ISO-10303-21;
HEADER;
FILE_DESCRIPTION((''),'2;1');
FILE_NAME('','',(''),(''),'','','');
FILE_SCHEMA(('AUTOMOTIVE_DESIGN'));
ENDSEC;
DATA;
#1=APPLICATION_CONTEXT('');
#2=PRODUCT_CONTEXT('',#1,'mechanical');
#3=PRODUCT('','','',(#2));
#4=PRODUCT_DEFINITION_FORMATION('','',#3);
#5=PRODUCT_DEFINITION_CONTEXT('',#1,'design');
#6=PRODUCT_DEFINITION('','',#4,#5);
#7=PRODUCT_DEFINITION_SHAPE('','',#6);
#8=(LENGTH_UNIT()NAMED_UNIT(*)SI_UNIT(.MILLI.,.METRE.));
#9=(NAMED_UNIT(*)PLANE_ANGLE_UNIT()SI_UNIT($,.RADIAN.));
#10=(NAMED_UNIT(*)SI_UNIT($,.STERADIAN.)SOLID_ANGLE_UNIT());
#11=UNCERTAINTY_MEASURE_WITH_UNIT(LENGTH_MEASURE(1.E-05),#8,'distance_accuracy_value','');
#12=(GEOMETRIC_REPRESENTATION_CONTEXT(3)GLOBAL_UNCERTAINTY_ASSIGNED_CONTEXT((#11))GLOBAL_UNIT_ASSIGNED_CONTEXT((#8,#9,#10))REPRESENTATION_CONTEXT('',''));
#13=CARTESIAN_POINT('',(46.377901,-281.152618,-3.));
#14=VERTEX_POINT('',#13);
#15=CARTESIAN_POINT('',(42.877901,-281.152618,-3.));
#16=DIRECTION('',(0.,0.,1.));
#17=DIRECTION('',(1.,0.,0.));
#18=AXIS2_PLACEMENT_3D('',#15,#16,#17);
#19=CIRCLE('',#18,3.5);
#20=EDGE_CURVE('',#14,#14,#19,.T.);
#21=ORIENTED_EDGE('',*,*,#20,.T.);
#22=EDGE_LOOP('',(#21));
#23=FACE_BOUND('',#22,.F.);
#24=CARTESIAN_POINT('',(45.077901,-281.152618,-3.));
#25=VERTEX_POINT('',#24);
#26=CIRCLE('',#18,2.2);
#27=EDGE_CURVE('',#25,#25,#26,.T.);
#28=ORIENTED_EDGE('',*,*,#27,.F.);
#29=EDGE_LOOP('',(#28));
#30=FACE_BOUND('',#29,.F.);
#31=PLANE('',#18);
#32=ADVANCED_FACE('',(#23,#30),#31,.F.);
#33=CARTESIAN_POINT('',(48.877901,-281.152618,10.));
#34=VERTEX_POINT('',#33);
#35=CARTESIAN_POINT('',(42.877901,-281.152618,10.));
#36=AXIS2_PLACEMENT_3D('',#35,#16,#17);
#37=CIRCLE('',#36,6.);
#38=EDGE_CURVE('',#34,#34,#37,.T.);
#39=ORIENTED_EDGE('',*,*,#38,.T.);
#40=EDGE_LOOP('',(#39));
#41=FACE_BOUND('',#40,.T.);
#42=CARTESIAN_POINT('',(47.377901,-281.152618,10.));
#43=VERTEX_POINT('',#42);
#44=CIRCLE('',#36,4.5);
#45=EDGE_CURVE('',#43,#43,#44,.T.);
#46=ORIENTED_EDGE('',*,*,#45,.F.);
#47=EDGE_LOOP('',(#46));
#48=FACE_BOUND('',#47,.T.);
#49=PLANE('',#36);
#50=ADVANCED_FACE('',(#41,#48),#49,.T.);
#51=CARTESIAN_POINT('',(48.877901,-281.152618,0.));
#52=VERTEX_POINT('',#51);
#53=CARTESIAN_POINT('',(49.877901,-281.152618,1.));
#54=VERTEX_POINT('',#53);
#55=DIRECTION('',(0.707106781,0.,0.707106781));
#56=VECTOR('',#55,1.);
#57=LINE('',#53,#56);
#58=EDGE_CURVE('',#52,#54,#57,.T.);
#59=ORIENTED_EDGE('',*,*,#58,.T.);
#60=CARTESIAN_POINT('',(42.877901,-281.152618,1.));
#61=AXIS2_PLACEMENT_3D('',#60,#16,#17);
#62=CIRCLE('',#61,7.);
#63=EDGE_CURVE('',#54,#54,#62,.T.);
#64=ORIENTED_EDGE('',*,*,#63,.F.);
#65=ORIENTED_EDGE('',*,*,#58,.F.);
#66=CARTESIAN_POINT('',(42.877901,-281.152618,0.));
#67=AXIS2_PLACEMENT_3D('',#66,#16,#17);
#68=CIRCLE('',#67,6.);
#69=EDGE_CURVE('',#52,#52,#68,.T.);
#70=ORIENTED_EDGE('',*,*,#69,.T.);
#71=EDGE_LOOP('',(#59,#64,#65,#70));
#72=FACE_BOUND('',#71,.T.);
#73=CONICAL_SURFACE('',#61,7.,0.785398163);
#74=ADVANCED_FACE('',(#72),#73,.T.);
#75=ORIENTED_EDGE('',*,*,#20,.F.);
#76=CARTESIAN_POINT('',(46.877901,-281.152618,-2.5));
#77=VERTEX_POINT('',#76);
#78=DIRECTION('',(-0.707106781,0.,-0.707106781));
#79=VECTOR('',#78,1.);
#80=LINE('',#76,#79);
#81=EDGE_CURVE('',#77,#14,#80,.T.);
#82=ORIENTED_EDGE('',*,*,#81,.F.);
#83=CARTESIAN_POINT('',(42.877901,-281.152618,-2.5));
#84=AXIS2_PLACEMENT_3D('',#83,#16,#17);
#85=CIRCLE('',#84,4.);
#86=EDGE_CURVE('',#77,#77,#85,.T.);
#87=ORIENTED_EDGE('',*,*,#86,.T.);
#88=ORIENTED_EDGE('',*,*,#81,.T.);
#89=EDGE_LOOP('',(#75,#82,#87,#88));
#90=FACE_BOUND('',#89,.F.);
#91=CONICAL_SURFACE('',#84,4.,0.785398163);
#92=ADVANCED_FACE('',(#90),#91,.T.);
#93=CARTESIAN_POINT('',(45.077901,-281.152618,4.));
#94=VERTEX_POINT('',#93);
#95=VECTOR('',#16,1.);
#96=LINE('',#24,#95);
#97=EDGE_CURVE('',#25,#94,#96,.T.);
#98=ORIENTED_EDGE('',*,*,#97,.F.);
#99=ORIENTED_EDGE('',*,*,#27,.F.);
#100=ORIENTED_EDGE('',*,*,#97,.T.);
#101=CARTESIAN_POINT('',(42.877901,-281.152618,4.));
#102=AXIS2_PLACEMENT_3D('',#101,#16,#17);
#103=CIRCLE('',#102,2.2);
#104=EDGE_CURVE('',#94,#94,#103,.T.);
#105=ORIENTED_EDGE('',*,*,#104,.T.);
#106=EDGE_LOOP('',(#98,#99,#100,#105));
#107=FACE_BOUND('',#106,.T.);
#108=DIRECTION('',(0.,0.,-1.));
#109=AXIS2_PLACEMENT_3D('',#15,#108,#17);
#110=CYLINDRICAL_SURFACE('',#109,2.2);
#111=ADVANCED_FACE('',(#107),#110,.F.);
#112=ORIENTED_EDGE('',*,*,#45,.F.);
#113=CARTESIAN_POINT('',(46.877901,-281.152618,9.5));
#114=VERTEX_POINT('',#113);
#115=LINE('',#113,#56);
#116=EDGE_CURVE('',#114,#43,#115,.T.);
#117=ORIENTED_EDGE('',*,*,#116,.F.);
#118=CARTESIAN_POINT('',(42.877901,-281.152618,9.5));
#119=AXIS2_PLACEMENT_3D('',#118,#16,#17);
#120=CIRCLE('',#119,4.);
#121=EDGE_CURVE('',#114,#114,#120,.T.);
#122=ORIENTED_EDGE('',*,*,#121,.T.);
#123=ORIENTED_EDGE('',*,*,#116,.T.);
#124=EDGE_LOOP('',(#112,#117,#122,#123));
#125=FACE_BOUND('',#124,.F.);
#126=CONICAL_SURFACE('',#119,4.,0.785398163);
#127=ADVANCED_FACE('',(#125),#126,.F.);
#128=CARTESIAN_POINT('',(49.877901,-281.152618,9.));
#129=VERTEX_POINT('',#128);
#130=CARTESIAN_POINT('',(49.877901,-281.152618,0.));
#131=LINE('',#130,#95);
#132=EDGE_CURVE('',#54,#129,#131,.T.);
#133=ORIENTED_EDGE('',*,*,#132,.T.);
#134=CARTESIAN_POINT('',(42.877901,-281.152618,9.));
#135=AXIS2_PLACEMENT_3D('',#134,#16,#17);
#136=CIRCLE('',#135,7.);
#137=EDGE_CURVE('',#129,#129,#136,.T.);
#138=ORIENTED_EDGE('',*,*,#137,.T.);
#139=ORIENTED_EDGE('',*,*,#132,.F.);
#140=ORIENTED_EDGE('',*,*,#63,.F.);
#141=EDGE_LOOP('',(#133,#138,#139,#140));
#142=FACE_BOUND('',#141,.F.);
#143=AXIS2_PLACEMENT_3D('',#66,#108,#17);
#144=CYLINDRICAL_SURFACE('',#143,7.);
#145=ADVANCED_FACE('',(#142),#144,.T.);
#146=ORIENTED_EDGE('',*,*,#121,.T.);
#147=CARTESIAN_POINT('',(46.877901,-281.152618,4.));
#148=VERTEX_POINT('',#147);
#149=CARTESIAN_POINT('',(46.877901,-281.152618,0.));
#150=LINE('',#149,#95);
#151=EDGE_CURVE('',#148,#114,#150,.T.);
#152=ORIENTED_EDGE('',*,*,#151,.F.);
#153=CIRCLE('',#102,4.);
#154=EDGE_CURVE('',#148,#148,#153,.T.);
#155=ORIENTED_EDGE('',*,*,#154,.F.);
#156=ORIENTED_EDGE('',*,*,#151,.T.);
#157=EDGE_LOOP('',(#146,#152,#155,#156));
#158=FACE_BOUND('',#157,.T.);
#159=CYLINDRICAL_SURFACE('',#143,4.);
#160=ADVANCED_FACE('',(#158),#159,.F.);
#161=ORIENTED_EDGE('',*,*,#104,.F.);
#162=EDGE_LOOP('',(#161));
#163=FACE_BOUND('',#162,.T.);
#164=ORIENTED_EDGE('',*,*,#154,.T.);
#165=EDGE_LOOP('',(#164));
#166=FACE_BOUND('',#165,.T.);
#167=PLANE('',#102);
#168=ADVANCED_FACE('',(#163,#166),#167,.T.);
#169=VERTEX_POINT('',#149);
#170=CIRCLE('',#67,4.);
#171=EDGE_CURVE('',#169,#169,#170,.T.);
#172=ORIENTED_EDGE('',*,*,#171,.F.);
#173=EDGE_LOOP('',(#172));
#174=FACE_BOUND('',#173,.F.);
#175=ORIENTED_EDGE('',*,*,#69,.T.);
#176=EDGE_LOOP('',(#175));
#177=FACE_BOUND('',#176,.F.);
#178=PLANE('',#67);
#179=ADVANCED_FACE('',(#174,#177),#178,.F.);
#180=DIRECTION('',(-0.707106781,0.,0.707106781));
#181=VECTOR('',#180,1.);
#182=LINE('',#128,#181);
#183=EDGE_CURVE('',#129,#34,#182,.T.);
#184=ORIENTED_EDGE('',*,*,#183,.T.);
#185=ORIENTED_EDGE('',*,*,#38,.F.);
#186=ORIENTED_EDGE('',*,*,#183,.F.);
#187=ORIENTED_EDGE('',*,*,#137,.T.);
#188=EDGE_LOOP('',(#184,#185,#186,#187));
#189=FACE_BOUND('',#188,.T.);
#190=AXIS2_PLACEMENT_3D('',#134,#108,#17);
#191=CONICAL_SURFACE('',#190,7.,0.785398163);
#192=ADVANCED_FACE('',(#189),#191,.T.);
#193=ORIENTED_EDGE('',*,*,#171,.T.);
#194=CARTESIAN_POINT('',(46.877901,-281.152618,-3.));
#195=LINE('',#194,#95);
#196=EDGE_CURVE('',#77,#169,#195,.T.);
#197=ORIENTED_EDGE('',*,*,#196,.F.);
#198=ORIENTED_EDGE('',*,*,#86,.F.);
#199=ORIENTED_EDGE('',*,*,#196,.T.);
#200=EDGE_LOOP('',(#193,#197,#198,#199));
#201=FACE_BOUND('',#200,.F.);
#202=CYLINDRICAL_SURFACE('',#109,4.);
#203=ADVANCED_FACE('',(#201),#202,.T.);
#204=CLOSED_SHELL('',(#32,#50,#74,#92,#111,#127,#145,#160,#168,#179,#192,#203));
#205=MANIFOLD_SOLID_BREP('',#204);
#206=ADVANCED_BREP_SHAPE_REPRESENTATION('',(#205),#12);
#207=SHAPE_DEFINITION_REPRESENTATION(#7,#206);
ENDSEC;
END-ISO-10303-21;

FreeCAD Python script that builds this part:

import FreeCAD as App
import Part
import Sketcher


def edges_at(feature, points):
    """Names of the edges that pass closest to the given points."""
    edges = feature.Shape.Edges
    near = lambda p: min(range(len(edges)), key=lambda i: edges[i].distToShape(Part.Vertex(*p))[0])
    return sorted({f"Edge{near(p) + 1}" for p in points})

doc = App.newDocument("Part")
body = doc.addObject("PartDesign::Body", "Body")

# Sketch on XY plane
sketch1 = body.newObject("Sketcher::SketchObject", "Sketch")
sketch1.AttachmentSupport = (doc.getObject("XY_Plane"), [""])
sketch1.MapMode = "FlatFace"
sketch1.addGeometry([
    Part.Circle(App.Vector(42.9, -281.2, 0), App.Vector(0, 0, 1), 7),
    Part.Circle(App.Vector(42.9, -281.2, 0), App.Vector(0, 0, 1), 4),
], False)
sketch1.addConstraint([
    Sketcher.Constraint("Coincident", 1, 3, 0, 3),
    Sketcher.Constraint("Diameter", 0, 14.0),
    Sketcher.Constraint("Diameter", 1, 8.0),
    Sketcher.Constraint("DistanceX", -1, 1, 0, 3, 42.877901),
    Sketcher.Constraint("DistanceY", 0, 3, -1, 1, 281.152618),
])
pad1 = body.newObject("PartDesign::Pad", "Pad")
pad1.Profile = sketch1
pad1.Length = 10

# Sketch on XY plane
sketch2 = body.newObject("Sketcher::SketchObject", "Sketch001")
sketch2.AttachmentSupport = (doc.getObject("XY_Plane"), [""])
sketch2.MapMode = "FlatFace"
sketch2.AttachmentOffset = App.Placement(App.Vector(0, 0, -3), App.Rotation())
sketch2.addGeometry([
    Part.Circle(App.Vector(42.9, -281.2, 0), App.Vector(0, 0, 1), 4),
    Part.Circle(App.Vector(42.9, -281.2, 0), App.Vector(0, 0, 1), 2.2),
], False)
sketch2.addConstraint([
    Sketcher.Constraint("Coincident", 1, 3, 0, 3),
    Sketcher.Constraint("Diameter", 0, 8.0),
    Sketcher.Constraint("Diameter", 1, 4.4),
    Sketcher.Constraint("DistanceX", -1, 1, 0, 3, 42.877901),
    Sketcher.Constraint("DistanceY", 0, 3, -1, 1, 281.152618),
])
pad2 = body.newObject("PartDesign::Pad", "Pad001")
pad2.Profile = sketch2
pad2.Length = 7
doc.recompute()

chamfer = body.newObject("PartDesign::Chamfer", "Chamfer")
chamfer.Base = (pad2, edges_at(pad2, [(35.878, -281.153, 0), (35.878, -281.153, 10)]))
chamfer.Size = 1
doc.recompute()

chamfer2 = body.newObject("PartDesign::Chamfer", "Chamfer001")
chamfer2.Base = (chamfer, edges_at(chamfer, [(38.878, -281.153, -3)]))
chamfer2.Size = 0.5
doc.recompute()

chamfer3 = body.newObject("PartDesign::Chamfer", "Chamfer002")
chamfer3.Base = (chamfer2, edges_at(chamfer2, [(38.878, -281.153, 10)]))
chamfer3.Size = 0.5

doc.recompute()
